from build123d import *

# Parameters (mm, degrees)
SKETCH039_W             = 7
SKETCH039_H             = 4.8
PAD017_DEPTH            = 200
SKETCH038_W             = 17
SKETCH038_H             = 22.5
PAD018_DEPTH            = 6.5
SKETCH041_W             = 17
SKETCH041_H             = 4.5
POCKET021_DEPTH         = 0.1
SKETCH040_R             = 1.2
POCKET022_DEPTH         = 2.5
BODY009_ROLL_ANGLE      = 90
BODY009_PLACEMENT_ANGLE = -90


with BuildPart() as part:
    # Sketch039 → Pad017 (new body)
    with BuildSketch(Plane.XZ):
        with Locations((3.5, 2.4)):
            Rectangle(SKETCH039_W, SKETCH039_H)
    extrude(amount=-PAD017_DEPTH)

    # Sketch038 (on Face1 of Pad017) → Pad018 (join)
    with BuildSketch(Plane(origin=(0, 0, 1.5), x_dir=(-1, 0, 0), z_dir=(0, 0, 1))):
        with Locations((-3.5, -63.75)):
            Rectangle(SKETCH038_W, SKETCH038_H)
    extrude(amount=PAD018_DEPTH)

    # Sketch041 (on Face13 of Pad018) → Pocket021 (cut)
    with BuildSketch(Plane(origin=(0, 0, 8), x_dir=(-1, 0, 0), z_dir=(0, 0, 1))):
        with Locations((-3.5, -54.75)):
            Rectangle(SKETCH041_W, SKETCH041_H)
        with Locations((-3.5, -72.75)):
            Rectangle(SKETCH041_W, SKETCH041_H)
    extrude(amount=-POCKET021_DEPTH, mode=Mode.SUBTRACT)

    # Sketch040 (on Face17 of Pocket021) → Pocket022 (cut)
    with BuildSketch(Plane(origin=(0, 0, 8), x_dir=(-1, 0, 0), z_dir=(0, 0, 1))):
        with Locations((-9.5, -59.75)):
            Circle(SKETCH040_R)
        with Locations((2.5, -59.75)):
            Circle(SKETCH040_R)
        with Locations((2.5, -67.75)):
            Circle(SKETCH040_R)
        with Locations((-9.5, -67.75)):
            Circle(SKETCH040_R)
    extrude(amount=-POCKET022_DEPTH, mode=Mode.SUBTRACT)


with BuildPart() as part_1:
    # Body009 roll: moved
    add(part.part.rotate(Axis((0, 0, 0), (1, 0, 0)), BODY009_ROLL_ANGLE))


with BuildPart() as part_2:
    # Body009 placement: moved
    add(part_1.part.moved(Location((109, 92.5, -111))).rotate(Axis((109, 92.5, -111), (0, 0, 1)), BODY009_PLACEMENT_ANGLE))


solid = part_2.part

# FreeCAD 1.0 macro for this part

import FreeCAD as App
import Part
import Sketcher

V = App.Vector
Q = App.Units.Quantity

doc = App.newDocument("Part")
body = doc.addObject("PartDesign::Body", "Body")

# Sketch on XZ plane
sketch1 = body.newObject("Sketcher::SketchObject", "Sketch")
sketch1.AttachmentSupport = (doc.getObject("XZ_Plane"), [""])
sketch1.MapMode = "FlatFace"
sketch1.addGeometry([
    Part.LineSegment(V(0, 4.8, 0), V(0, 0, 0)),
    Part.LineSegment(V(0, 0, 0), V(7, 0, 0)),
    Part.LineSegment(V(7, 0, 0), V(7, 4.8, 0)),
    Part.LineSegment(V(7, 4.8, 0), V(0, 4.8, 0)),
], False)
sketch1.addConstraint([
    Sketcher.Constraint("Coincident", 0, 2, 1, 1),
    Sketcher.Constraint("Coincident", 1, 2, 2, 1),
    Sketcher.Constraint("Coincident", 2, 2, 3, 1),
    Sketcher.Constraint("Coincident", 3, 2, 0, 1),
    Sketcher.Constraint("Vertical", 0),
    Sketcher.Constraint("Horizontal", 1),
    Sketcher.Constraint("Vertical", 2),
    Sketcher.Constraint("Horizontal", 3),
    Sketcher.Constraint("Coincident", 0, 2, -1, 1),
    Sketcher.Constraint("DistanceX", 1, 1, 1, 2, Q("7 mm")),
    Sketcher.Constraint("DistanceY", 0, 2, 0, 1, Q("4.8 mm")),
])
pad1 = body.newObject("PartDesign::Pad", "Pad")
pad1.Profile = sketch1
pad1.Length = 200
pad1.Reversed = True

# Sketch on XY plane
sketch2 = body.newObject("Sketcher::SketchObject", "Sketch001")
sketch2.AttachmentSupport = (doc.getObject("XY_Plane"), [""])
sketch2.MapMode = "FlatFace"
sketch2.AttachmentOffset = App.Placement(V(0, 0, 1.5), App.Rotation())
sketch2.addGeometry([
    Part.LineSegment(V(12, 52, 0), V(12, 75, 0)),
    Part.LineSegment(V(12, 75, 0), V(-5, 75, 0)),
    Part.LineSegment(V(-5, 75, 0), V(-5, 52, 0)),
    Part.LineSegment(V(-5, 52, 0), V(12, 52, 0)),
], False)
sketch2.addConstraint([
    Sketcher.Constraint("Coincident", 0, 2, 1, 1),
    Sketcher.Constraint("Coincident", 1, 2, 2, 1),
    Sketcher.Constraint("Coincident", 2, 2, 3, 1),
    Sketcher.Constraint("Coincident", 3, 2, 0, 1),
    Sketcher.Constraint("Vertical", 0),
    Sketcher.Constraint("Horizontal", 1),
    Sketcher.Constraint("Vertical", 2),
    Sketcher.Constraint("Horizontal", 3),
    Sketcher.Constraint("DistanceX", 1, 2, 1, 1, Q("17 mm")),
    Sketcher.Constraint("DistanceY", 0, 1, 0, 2, Q("22.5 mm")),
    Sketcher.Constraint("DistanceX", -1, 1, 0, 2, Q("12 mm")),
    Sketcher.Constraint("DistanceY", -1, 1, 0, 2, Q("75 mm")),
])
pad2 = body.newObject("PartDesign::Pad", "Pad001")
pad2.Profile = sketch2
pad2.Length = 6.5

# Sketch on XY plane
sketch3 = body.newObject("Sketcher::SketchObject", "Sketch002")
sketch3.AttachmentSupport = (doc.getObject("XY_Plane"), [""])
sketch3.MapMode = "FlatFace"
sketch3.AttachmentOffset = App.Placement(V(0, 0, 8), App.Rotation())
sketch3.addGeometry([
    Part.LineSegment(V(12, 52.5, 0), V(12, 57, 0)),  # 0
    Part.LineSegment(V(12, 57, 0), V(-5, 57, 0)),  # 1
    Part.LineSegment(V(-5, 57, 0), V(-5, 52.5, 0)),  # 2
    Part.LineSegment(V(-5, 52.5, 0), V(12, 52.5, 0)),  # 3
    Part.LineSegment(V(12, 70.5, 0), V(12, 75, 0)),  # 4
    Part.LineSegment(V(12, 75, 0), V(-5, 75, 0)),  # 5
    Part.LineSegment(V(-5, 75, 0), V(-5, 70.5, 0)),  # 6
    Part.LineSegment(V(-5, 70.5, 0), V(12, 70.5, 0)),  # 7
], False)
sketch3.addConstraint([
    Sketcher.Constraint("Coincident", 0, 2, 1, 1),
    Sketcher.Constraint("Coincident", 1, 2, 2, 1),
    Sketcher.Constraint("Coincident", 2, 2, 3, 1),
    Sketcher.Constraint("Coincident", 3, 2, 0, 1),
    Sketcher.Constraint("Coincident", 4, 2, 5, 1),
    Sketcher.Constraint("Coincident", 5, 2, 6, 1),
    Sketcher.Constraint("Coincident", 6, 2, 7, 1),
    Sketcher.Constraint("Coincident", 7, 2, 4, 1),
    Sketcher.Constraint("Vertical", 0),
    Sketcher.Constraint("Horizontal", 1),
    Sketcher.Constraint("Vertical", 2),
    Sketcher.Constraint("Horizontal", 3),
    Sketcher.Constraint("Vertical", 4),
    Sketcher.Constraint("Horizontal", 5),
    Sketcher.Constraint("Vertical", 6),
    Sketcher.Constraint("Horizontal", 7),
    Sketcher.Constraint("Vertical", 3, 2, 4, 2),
    Sketcher.Constraint("Vertical", 2, 2, 5, 2),
    Sketcher.Constraint("Equal", 2, 4),
    Sketcher.Constraint("DistanceX", 1, 2, 1, 1, Q("17 mm")),
    Sketcher.Constraint("DistanceY", 0, 1, 0, 2, Q("4.5 mm")),
    Sketcher.Constraint("DistanceX", -1, 1, 0, 2, Q("12 mm")),
    Sketcher.Constraint("DistanceY", -1, 1, 0, 2, Q("57 mm")),
    Sketcher.Constraint("DistanceY", -1, 1, 4, 2, Q("75 mm")),
])
pocket1 = body.newObject("PartDesign::Pocket", "Pocket")
pocket1.Profile = sketch3
pocket1.Length = 0.1

# Sketch on XY plane
sketch4 = body.newObject("Sketcher::SketchObject", "Sketch003")
sketch4.AttachmentSupport = (doc.getObject("XY_Plane"), [""])
sketch4.MapMode = "FlatFace"
sketch4.AttachmentOffset = App.Placement(V(0, 0, 8), App.Rotation())
sketch4.addGeometry([
    Part.Circle(V(9.5, 59.8, 0), V(0, 0, 1), 1.2),
    Part.Circle(V(-2.5, 59.8, 0), V(0, 0, 1), 1.2),
    Part.Circle(V(-2.5, 67.8, 0), V(0, 0, 1), 1.2),
    Part.Circle(V(9.5, 67.8, 0), V(0, 0, 1), 1.2),
], False)
sketch4.addConstraint([
    Sketcher.Constraint("Equal", 0, 1),
    Sketcher.Constraint("Equal", 1, 2),
    Sketcher.Constraint("Equal", 2, 3),
    Sketcher.Constraint("Horizontal", 0, 3, 1, 3),
    Sketcher.Constraint("Horizontal", 2, 3, 3, 3),
    Sketcher.Constraint("Vertical", 1, 3, 2, 3),
    Sketcher.Constraint("Vertical", 0, 3, 3, 3),
    Sketcher.Constraint("Diameter", 0, Q("2.4 mm")),
    Sketcher.Constraint("DistanceX", 1, 3, 0, 3, Q("12 mm")),
    Sketcher.Constraint("DistanceY", 1, 3, 2, 3, Q("8 mm")),
    Sketcher.Constraint("DistanceX", -1, 1, 0, 3, Q("9.5 mm")),
    Sketcher.Constraint("DistanceY", -1, 1, 0, 3, Q("59.75 mm")),
])
pocket2 = body.newObject("PartDesign::Pocket", "Pocket001")
pocket2.Profile = sketch4
pocket2.Length = 2.5
body2 = doc.addObject("PartDesign::Body", "Body001")
doc.recompute()

body.Placement = App.Placement(V(0, 0, 0), App.Rotation(V(1, 0, 0), 90))
boolean = body2.newObject("PartDesign::Boolean", "Boolean")
boolean.Type = "Fuse"
boolean.addObjects([body])
body3 = doc.addObject("PartDesign::Body", "Body002")
doc.recompute()

body2.Placement = App.Placement(V(109, 92.5, -111), App.Rotation(V(0, 0, 1), 270))
boolean2 = body3.newObject("PartDesign::Boolean", "Boolean001")
boolean2.Type = "Fuse"
boolean2.addObjects([body2])

doc.recompute()
